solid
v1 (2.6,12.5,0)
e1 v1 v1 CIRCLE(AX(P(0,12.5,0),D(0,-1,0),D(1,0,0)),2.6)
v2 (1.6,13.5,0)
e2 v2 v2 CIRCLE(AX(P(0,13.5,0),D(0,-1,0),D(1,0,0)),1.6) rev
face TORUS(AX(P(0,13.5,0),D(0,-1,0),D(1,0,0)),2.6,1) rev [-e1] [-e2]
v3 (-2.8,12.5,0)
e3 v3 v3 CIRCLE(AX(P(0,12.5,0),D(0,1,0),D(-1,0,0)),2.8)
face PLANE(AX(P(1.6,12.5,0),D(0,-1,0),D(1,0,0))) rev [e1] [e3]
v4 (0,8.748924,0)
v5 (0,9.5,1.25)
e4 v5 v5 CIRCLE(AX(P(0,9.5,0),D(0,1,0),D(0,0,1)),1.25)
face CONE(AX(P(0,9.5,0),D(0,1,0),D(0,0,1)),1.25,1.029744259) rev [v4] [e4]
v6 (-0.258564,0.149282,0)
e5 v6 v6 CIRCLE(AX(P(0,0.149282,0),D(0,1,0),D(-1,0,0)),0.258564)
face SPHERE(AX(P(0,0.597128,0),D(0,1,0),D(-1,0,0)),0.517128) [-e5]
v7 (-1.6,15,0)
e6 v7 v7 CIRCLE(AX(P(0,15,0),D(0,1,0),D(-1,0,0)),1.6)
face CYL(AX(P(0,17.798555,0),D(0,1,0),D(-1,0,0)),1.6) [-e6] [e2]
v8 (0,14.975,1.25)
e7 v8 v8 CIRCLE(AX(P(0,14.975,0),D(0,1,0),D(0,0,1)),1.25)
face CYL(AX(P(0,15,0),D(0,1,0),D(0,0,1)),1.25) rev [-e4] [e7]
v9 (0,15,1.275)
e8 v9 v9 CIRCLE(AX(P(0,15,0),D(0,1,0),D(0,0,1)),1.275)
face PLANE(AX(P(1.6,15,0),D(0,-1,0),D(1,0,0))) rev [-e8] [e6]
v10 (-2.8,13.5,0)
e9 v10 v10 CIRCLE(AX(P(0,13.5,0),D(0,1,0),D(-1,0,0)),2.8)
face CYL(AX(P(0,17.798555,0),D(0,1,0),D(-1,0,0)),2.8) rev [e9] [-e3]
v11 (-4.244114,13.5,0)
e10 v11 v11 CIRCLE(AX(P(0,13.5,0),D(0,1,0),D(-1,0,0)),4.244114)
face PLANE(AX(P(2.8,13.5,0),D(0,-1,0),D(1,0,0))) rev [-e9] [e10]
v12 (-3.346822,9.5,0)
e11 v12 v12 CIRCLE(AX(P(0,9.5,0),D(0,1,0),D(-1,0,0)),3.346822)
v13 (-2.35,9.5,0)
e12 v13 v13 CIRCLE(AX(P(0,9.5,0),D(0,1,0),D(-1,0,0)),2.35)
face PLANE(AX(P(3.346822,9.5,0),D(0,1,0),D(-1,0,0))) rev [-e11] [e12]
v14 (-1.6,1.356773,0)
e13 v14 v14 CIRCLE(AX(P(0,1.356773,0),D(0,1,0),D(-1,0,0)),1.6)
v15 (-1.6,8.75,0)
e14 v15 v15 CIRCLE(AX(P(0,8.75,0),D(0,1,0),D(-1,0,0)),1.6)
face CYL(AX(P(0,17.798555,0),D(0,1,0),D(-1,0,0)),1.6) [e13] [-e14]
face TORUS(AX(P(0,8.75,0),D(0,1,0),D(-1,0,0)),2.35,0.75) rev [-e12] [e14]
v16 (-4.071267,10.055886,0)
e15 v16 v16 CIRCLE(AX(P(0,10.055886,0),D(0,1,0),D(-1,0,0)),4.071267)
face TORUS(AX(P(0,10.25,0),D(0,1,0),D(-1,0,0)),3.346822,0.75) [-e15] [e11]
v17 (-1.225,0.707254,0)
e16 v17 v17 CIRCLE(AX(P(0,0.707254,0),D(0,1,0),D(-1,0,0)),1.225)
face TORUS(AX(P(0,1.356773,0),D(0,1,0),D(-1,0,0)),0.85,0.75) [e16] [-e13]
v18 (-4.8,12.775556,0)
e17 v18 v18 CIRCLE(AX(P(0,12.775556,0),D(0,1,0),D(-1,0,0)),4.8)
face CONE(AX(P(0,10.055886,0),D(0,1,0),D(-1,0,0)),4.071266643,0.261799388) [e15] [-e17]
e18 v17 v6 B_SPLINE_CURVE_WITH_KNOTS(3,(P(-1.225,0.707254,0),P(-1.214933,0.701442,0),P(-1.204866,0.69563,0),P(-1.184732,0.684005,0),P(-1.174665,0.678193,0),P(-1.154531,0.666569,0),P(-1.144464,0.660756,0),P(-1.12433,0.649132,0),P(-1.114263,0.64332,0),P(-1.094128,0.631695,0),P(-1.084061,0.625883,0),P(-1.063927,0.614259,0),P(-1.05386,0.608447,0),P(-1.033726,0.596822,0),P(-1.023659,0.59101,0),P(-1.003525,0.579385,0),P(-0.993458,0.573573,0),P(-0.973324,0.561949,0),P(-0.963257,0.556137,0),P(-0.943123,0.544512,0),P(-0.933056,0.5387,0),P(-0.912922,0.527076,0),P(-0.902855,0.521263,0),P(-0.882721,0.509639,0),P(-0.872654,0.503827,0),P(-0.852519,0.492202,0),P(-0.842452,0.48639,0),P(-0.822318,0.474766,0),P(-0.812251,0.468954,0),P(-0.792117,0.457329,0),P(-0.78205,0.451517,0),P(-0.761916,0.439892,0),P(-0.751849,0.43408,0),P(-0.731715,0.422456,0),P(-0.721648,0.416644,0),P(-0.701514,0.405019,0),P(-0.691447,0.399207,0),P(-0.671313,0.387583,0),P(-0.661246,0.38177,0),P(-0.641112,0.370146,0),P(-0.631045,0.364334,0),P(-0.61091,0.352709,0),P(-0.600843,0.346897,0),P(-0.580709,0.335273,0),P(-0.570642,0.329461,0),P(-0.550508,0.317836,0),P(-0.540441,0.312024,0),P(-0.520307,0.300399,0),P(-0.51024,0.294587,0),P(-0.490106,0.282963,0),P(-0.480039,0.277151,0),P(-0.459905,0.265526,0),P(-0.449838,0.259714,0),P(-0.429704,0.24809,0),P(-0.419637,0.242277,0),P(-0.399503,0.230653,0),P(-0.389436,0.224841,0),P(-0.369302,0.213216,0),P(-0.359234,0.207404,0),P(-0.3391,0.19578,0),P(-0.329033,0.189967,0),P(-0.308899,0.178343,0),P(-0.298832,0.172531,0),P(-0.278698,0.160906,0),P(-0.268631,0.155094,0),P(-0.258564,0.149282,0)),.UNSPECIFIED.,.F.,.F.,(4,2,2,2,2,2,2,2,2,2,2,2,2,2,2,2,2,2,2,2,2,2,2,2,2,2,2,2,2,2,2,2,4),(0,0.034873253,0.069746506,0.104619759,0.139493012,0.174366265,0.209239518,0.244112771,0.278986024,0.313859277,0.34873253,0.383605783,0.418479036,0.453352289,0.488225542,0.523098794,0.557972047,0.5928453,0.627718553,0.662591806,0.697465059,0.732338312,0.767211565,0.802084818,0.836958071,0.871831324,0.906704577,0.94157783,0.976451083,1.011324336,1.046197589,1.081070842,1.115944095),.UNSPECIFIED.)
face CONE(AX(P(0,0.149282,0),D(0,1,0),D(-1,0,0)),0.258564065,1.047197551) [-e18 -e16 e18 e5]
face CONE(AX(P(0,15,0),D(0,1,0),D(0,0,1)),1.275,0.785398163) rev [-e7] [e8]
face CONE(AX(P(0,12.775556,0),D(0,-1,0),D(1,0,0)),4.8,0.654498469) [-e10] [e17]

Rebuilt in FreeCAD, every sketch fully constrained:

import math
import FreeCAD as App
import Part
import Sketcher

V = App.Vector
Q = App.Units.Quantity


def edges_at(feature, points):
    """Names of the edges that pass closest to the given points."""
    edges = feature.Shape.Edges
    near = lambda p: min(range(len(edges)), key=lambda i: edges[i].distToShape(Part.Vertex(*p))[0])
    return sorted({f"Edge{near(p) + 1}" for p in points})

doc = App.newDocument("Part")
params = doc.addObject("Spreadsheet::Sheet", "Params")
for row, (alias, value) in enumerate([
    ("sketch1_height", "1 mm"),
    ("sketch1_radius", "0.75 mm"),
    ("sketch1_width", "1.6 mm"),
    ("sketch1_width2", "1.2 mm"),
    ("sketch1_height2", "2.5 mm"),
    ("revolution_angle", "360 deg"),
    ("fillet_radius", "1 mm"),
    ("sketch2_diameter", "2.5 mm"),
    ("hole_diameter", "2.5 mm"),
    ("hole_depth", "5.5 mm"),
    ("hole_csink_diameter", "2.55 mm"),
], start=1):
    params.set(f"A{row}", alias)
    params.set(f"B{row}", "=" + value)
    params.setAlias(f"B{row}", alias)

body = doc.addObject("PartDesign::Body", "Body")

# Sketch on XY plane
sketch1 = doc.addObject("Sketcher::SketchObject", "Sketch")
body.addObject(sketch1)
sketch1.AttachmentSupport = (doc.XY_Plane, [""])
sketch1.MapMode = "FlatFace"
sketch1.addGeometry([
    Part.LineSegment(V(1.6, 12.5, 0), V(1.6, 15, 0)),  # 0
    Part.LineSegment(V(1.6, 15, 0), V(0, 15, 0)),  # 1
    Part.LineSegment(V(0, 15, 0), V(0, 0.08, 0)),  # 2
    Part.ArcOfCircle(Part.Circle(V(0, 0.6, 0), V(0, 0, 1), 0.52), math.radians(-90), math.radians(-60)),  # 3
    Part.LineSegment(V(0.26, 0.15, 0), V(1.23, 0.71, 0)),  # 4
    Part.ArcOfCircle(Part.Circle(V(0.85, 1.36, 0), V(0, 0, 1), 0.75), math.radians(-60), math.radians(0)),  # 5
    Part.LineSegment(V(1.6, 1.36, 0), V(1.6, 8.75, 0)),  # 6
    Part.ArcOfCircle(Part.Circle(V(2.35, 8.75, 0), V(0, 0, 1), 0.75), math.radians(90), math.radians(180)),  # 7
    Part.LineSegment(V(2.35, 9.5, 0), V(3.35, 9.5, 0)),  # 8
    Part.ArcOfCircle(Part.Circle(V(3.35, 10.25, 0), V(0, 0, 1), 0.75), math.radians(-90), math.radians(-15)),  # 9
    Part.LineSegment(V(4.07, 10.06, 0), V(4.8, 12.78, 0)),  # 10
    Part.LineSegment(V(4.8, 12.78, 0), V(4.24, 13.5, 0)),  # 11
    Part.LineSegment(V(4.24, 13.5, 0), V(2.8, 13.5, 0)),  # 12
    Part.LineSegment(V(2.8, 13.5, 0), V(2.8, 12.5, 0)),  # 13
    Part.LineSegment(V(2.8, 12.5, 0), V(1.6, 12.5, 0)),  # 14
], False)
sketch1.addConstraint([
    Sketcher.Constraint("Coincident", 0, 2, 1, 1),
    Sketcher.Constraint("Coincident", 1, 2, 2, 1),
    Sketcher.Constraint("Coincident", 2, 2, 3, 1),
    Sketcher.Constraint("Tangent", 3, 2, 4, 1),
    Sketcher.Constraint("Tangent", 4, 2, 5, 1),
    Sketcher.Constraint("Tangent", 5, 2, 6, 1),
    Sketcher.Constraint("Tangent", 6, 2, 7, 2),
    Sketcher.Constraint("Tangent", 7, 1, 8, 1),
    Sketcher.Constraint("Tangent", 8, 2, 9, 1),
    Sketcher.Constraint("Tangent", 9, 2, 10, 1),
    Sketcher.Constraint("Coincident", 10, 2, 11, 1),
    Sketcher.Constraint("Coincident", 11, 2, 12, 1),
    Sketcher.Constraint("Coincident", 12, 2, 13, 1),
    Sketcher.Constraint("Coincident", 13, 2, 14, 1),
    Sketcher.Constraint("Coincident", 14, 2, 0, 1),
    Sketcher.Constraint("Vertical", 0),
    Sketcher.Constraint("Horizontal", 1),
    Sketcher.Constraint("Vertical", 2),
    Sketcher.Constraint("Vertical", 6),
    Sketcher.Constraint("Horizontal", 8),
    Sketcher.Constraint("Horizontal", 12),
    Sketcher.Constraint("Vertical", 13),
    Sketcher.Constraint("Horizontal", 14),
    Sketcher.Constraint("Equal", 5, 7),
    Sketcher.Constraint("Equal", 7, 9),
    Sketcher.Constraint("PointOnObject", 3, 3, -2),
    Sketcher.Constraint("PointOnObject", 1, 2, -2),
    Sketcher.Constraint("Vertical", 0, 2, 5, 2),
    Sketcher.Constraint("DistanceY", 13, 2, 13, 1, Q("1 mm")),
    Sketcher.Constraint("Angle", 4, Q("30 deg")),
    Sketcher.Constraint("Angle", 10, Q("75 deg")),
    Sketcher.Constraint("Radius", 5, Q("0.75 mm")),
    Sketcher.Constraint("DistanceX", 1, 2, 1, 1, Q("1.6 mm")),
    Sketcher.Constraint("DistanceX", 14, 2, 14, 1, Q("1.2 mm")),
    Sketcher.Constraint("DistanceY", 0, 1, 0, 2, Q("2.5 mm")),
    Sketcher.Constraint("DistanceY", -1, 1, 0, 2, Q("15 mm")),
    Sketcher.Constraint("Angle", 11, Q("127.5 deg")),
    Sketcher.Constraint("DistanceY", 8, 2, 11, 2, Q("4 mm")),
    Sketcher.Constraint("DistanceX", 12, 2, 10, 2, Q("2 mm")),
    Sketcher.Constraint("DistanceY", 2, 2, 2, 1, Q("14.92 mm")),
    Sketcher.Constraint("Radius", 3, Q("0.517128 mm")),
    Sketcher.Constraint("Distance", 10, Q("2.815609 mm")),
])
sketch1.setExpression("Constraints[28]", "Params.sketch1_height")
sketch1.setExpression("Constraints[31]", "Params.sketch1_radius")
sketch1.setExpression("Constraints[32]", "Params.sketch1_width")
sketch1.setExpression("Constraints[33]", "Params.sketch1_width2")
sketch1.setExpression("Constraints[34]", "Params.sketch1_height2")
revolution = doc.addObject("PartDesign::Revolution", "Revolution")
body.addObject(revolution)
revolution.Profile = sketch1
revolution.ReferenceAxis = (sketch1, ["V_Axis"])
revolution.setExpression("Angle", "Params.revolution_angle")
doc.recompute()

fillet = doc.addObject("PartDesign::Fillet", "Fillet")
body.addObject(fillet)
fillet.Base = (revolution, edges_at(revolution, [(1.6, 12.5, 0)]))
fillet.setExpression("Radius", "Params.fillet_radius")

# Sketch on XZ plane
sketch2 = doc.addObject("Sketcher::SketchObject", "Sketch001")
body.addObject(sketch2)
sketch2.AttachmentSupport = (doc.XZ_Plane, [""])
sketch2.MapMode = "FlatFace"
sketch2.AttachmentOffset = App.Placement(V(0, 0, -15), App.Rotation())
sketch2.addGeometry(Part.Circle(V(0, 0, 0), V(0, 0, 1), 1.2), False)
sketch2.addConstraint([
    Sketcher.Constraint("Coincident", 0, 3, -1, 1),
    Sketcher.Constraint("Diameter", 0, Q("2.5 mm")),
])
sketch2.setExpression("Constraints[1]", "Params.sketch2_diameter")
doc.recompute()
hole = doc.addObject("PartDesign::Hole", "Hole")
body.addObject(hole)
hole.Profile = sketch2
hole.ThreadType = "None"
hole.setExpression("Diameter", "Params.hole_diameter")
hole.DepthType = "Dimension"
hole.setExpression("Depth", "Params.hole_depth")
hole.DrillPoint = "Angled"
hole.DrillPointAngle = 118
hole.HoleCutType = "Countersink"
hole.setExpression("HoleCutDiameter", "Params.hole_csink_diameter")
hole.HoleCutCountersinkAngle = 90
hole.Reversed = True

doc.recompute()
